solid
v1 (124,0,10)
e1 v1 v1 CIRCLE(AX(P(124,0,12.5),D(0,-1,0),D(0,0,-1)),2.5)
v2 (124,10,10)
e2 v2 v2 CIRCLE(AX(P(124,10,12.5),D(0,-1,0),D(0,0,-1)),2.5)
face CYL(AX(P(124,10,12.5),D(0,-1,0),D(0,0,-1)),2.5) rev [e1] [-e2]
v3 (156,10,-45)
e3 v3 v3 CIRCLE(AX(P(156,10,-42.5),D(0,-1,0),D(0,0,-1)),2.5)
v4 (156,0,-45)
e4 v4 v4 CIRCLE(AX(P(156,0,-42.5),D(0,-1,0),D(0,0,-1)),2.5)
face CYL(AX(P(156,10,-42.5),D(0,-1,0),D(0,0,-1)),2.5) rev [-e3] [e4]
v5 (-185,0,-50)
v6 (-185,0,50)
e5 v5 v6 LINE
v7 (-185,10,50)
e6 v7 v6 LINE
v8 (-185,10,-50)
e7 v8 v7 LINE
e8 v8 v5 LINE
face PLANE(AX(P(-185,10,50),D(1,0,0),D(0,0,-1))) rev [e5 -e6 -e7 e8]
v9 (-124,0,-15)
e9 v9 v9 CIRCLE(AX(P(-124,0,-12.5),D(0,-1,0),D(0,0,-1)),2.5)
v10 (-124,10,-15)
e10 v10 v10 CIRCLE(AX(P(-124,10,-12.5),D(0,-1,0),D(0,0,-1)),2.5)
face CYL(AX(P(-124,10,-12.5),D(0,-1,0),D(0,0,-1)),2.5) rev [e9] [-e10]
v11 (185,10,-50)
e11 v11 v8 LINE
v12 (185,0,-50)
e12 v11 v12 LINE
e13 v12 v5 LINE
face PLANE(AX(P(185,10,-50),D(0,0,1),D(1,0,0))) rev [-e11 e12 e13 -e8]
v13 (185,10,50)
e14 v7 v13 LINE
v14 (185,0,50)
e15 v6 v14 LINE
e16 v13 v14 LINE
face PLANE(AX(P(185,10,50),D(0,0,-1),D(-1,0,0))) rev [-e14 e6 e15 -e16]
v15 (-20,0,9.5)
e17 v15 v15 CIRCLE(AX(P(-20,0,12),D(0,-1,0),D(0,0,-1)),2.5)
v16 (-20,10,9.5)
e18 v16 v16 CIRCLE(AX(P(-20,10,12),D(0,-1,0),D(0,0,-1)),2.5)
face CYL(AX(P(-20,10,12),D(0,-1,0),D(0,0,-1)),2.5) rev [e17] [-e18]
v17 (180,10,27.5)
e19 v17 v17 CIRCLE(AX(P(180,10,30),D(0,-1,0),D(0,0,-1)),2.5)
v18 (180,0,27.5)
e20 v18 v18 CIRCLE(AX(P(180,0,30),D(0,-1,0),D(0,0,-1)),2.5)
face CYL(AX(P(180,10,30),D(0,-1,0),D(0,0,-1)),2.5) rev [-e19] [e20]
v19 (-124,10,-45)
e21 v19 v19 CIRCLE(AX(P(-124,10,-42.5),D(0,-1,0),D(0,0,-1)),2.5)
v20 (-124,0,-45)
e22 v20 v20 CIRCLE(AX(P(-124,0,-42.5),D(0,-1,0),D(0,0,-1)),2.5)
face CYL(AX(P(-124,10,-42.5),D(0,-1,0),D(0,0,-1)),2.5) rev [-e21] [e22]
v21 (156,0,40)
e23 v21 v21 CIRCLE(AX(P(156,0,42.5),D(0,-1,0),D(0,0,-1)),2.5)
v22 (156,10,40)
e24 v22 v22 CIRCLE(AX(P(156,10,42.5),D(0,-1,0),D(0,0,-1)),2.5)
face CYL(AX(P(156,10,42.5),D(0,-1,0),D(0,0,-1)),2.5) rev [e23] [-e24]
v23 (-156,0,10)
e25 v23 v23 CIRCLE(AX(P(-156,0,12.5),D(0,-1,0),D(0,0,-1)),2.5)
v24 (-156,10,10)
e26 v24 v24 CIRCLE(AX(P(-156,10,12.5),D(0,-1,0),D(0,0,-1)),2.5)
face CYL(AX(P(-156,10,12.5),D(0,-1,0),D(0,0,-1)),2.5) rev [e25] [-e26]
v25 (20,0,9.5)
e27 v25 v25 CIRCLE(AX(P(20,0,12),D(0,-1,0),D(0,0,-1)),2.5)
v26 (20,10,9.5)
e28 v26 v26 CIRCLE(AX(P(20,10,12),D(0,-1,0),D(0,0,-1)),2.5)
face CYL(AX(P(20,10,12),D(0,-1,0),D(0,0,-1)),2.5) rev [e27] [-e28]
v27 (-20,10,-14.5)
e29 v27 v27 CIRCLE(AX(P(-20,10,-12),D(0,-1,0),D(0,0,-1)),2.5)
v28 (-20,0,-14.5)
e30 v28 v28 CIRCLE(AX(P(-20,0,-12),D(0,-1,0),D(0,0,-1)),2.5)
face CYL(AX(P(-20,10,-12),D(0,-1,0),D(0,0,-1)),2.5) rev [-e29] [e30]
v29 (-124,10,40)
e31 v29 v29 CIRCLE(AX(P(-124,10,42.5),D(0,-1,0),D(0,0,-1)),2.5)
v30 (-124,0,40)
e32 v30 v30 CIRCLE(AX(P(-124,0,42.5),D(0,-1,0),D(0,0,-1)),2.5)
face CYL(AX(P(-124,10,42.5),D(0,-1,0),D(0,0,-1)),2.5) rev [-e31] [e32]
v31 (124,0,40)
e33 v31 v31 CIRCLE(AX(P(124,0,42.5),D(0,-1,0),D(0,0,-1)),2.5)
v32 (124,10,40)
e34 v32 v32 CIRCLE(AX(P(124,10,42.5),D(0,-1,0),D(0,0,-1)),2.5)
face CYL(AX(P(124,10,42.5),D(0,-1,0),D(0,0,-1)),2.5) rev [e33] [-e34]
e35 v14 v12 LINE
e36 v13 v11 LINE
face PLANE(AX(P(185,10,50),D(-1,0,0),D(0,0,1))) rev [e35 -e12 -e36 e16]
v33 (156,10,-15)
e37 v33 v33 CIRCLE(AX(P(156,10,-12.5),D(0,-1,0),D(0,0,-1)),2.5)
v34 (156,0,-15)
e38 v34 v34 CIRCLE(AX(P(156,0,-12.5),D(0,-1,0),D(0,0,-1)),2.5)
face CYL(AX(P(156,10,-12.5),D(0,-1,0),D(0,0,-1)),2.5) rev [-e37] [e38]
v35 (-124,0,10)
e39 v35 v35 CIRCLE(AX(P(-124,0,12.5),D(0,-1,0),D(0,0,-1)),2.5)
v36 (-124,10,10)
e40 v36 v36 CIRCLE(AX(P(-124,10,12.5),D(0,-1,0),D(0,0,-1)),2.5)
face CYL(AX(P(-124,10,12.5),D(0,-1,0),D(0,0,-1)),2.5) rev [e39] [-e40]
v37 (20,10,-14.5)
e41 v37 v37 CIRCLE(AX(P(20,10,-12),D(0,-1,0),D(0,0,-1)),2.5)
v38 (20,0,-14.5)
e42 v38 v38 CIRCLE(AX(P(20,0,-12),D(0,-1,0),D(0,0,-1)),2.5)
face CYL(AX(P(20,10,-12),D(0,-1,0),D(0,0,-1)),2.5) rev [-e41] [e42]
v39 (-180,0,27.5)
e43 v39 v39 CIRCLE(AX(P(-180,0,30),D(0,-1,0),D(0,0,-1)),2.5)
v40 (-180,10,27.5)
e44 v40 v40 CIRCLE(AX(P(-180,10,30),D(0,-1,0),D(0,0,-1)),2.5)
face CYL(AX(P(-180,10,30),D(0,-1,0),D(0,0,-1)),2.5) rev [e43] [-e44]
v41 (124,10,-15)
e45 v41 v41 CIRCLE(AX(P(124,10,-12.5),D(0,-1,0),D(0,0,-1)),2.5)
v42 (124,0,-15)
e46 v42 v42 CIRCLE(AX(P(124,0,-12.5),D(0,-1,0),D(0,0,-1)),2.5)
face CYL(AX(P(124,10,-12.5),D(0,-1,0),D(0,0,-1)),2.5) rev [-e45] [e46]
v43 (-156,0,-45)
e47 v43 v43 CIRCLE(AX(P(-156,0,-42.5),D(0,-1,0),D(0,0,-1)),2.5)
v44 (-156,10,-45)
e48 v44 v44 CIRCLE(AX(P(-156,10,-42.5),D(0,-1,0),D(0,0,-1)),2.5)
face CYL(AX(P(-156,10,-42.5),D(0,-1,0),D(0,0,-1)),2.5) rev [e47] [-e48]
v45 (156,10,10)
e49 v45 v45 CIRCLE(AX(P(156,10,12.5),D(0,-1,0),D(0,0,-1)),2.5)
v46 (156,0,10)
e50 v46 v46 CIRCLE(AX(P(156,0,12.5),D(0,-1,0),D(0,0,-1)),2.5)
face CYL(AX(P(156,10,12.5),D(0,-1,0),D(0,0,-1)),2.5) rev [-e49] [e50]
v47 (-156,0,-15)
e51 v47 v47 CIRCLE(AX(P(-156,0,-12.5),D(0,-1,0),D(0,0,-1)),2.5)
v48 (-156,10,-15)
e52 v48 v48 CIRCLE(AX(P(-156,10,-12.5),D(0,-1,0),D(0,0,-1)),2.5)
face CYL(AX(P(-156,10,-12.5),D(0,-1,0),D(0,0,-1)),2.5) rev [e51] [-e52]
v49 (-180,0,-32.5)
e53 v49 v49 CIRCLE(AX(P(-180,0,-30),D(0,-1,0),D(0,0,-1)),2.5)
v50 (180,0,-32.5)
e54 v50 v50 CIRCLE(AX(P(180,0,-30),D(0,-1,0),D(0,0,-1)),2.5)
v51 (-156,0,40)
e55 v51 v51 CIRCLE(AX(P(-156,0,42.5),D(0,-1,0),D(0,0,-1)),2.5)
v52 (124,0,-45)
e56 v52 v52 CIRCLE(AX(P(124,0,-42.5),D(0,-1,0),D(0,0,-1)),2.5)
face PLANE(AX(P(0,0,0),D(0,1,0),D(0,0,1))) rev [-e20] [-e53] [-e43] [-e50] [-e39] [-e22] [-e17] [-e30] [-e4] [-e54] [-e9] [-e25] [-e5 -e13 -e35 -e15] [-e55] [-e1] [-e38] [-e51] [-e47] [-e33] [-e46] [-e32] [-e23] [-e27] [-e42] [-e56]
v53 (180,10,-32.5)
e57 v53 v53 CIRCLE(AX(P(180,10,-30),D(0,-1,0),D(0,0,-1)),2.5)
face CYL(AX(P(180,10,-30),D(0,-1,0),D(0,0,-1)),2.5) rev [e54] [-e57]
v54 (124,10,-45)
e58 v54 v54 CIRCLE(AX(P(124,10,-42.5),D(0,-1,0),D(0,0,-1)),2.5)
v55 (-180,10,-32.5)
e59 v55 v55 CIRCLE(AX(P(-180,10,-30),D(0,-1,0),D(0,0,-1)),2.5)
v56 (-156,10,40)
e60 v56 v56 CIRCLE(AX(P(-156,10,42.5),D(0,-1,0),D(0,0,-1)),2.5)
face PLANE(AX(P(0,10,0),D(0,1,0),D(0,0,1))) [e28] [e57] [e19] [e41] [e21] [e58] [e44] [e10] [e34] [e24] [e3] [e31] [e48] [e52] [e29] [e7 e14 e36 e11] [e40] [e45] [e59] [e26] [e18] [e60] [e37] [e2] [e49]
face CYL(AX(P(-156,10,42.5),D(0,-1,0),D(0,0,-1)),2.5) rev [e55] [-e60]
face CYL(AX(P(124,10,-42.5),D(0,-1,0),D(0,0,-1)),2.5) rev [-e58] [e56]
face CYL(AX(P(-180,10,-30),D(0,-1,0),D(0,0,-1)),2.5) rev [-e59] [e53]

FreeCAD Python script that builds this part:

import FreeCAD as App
import Part
import Sketcher
Q = App.Units.Quantity

doc = App.newDocument("Part")
body = doc.addObject("PartDesign::Body", "Body")

# Sketch on XZ plane
sketch1 = body.newObject("Sketcher::SketchObject", "Sketch")
sketch1.AttachmentSupport = (doc.getObject("XZ_Plane"), [""])
sketch1.MapMode = "FlatFace"
sketch1.addGeometry([
    Part.LineSegment(App.Vector(-185, -50, 0), App.Vector(-185, 50, 0)),
    Part.LineSegment(App.Vector(-185, 50, 0), App.Vector(185, 50, 0)),
    Part.LineSegment(App.Vector(185, 50, 0), App.Vector(185, -50, 0)),
    Part.LineSegment(App.Vector(185, -50, 0), App.Vector(-185, -50, 0)),
], False)
sketch1.addConstraint([
    Sketcher.Constraint("Coincident", 0, 2, 1, 1),
    Sketcher.Constraint("Coincident", 1, 2, 2, 1),
    Sketcher.Constraint("Coincident", 2, 2, 3, 1),
    Sketcher.Constraint("Coincident", 3, 2, 0, 1),
    Sketcher.Constraint("Vertical", 0),
    Sketcher.Constraint("Horizontal", 1),
    Sketcher.Constraint("Vertical", 2),
    Sketcher.Constraint("Horizontal", 3),
    Sketcher.Constraint("Symmetric", 0, 2, 2, 2, -1, 1),
    Sketcher.Constraint("DistanceX", 1, 1, 1, 2, Q("370 mm")),
    Sketcher.Constraint("DistanceY", 0, 1, 0, 2, Q("100 mm")),
])
pad1 = body.newObject("PartDesign::Pad", "Pad")
pad1.Profile = sketch1
pad1.Length = 10
pad1.Reversed = True

# Sketch on XZ plane
sketch2 = body.newObject("Sketcher::SketchObject", "Sketch001")
sketch2.AttachmentSupport = (doc.getObject("XZ_Plane"), [""])
sketch2.MapMode = "FlatFace"
sketch2.addGeometry([
    Part.Circle(App.Vector(-156, 42.5, 0), App.Vector(0, 0, 1), 2.5),  # 0
    Part.Circle(App.Vector(-124, 42.5, 0), App.Vector(0, 0, 1), 2.5),  # 1
    Part.Circle(App.Vector(124, 42.5, 0), App.Vector(0, 0, 1), 2.5),  # 2
    Part.Circle(App.Vector(156, 42.5, 0), App.Vector(0, 0, 1), 2.5),  # 3
    Part.Circle(App.Vector(-156, 12.5, 0), App.Vector(0, 0, 1), 2.5),  # 4
    Part.Circle(App.Vector(-124, 12.5, 0), App.Vector(0, 0, 1), 2.5),  # 5
    Part.Circle(App.Vector(124, 12.5, 0), App.Vector(0, 0, 1), 2.5),  # 6
    Part.Circle(App.Vector(156, 12.5, 0), App.Vector(0, 0, 1), 2.5),  # 7
    Part.Circle(App.Vector(-156, -12.5, 0), App.Vector(0, 0, 1), 2.5),  # 8
    Part.Circle(App.Vector(-124, -12.5, 0), App.Vector(0, 0, 1), 2.5),  # 9
    Part.Circle(App.Vector(124, -12.5, 0), App.Vector(0, 0, 1), 2.5),  # 10
    Part.Circle(App.Vector(156, -12.5, 0), App.Vector(0, 0, 1), 2.5),  # 11
    Part.Circle(App.Vector(-156, -42.5, 0), App.Vector(0, 0, 1), 2.5),  # 12
    Part.Circle(App.Vector(-124, -42.5, 0), App.Vector(0, 0, 1), 2.5),  # 13
    Part.Circle(App.Vector(124, -42.5, 0), App.Vector(0, 0, 1), 2.5),  # 14
    Part.Circle(App.Vector(156, -42.5, 0), App.Vector(0, 0, 1), 2.5),  # 15
    Part.Circle(App.Vector(-20, 12, 0), App.Vector(0, 0, 1), 2.5),  # 16
    Part.Circle(App.Vector(20, 12, 0), App.Vector(0, 0, 1), 2.5),  # 17
    Part.Circle(App.Vector(20, -12, 0), App.Vector(0, 0, 1), 2.5),  # 18
    Part.Circle(App.Vector(-20, -12, 0), App.Vector(0, 0, 1), 2.5),  # 19
    Part.Circle(App.Vector(-180, 30, 0), App.Vector(0, 0, 1), 2.5),  # 20
    Part.Circle(App.Vector(-180, -30, 0), App.Vector(0, 0, 1), 2.5),  # 21
    Part.Circle(App.Vector(180, -30, 0), App.Vector(0, 0, 1), 2.5),  # 22
    Part.Circle(App.Vector(180, 30, 0), App.Vector(0, 0, 1), 2.5),  # 23
], False)
sketch2.addConstraint([
    Sketcher.Constraint("Equal", 0, 1),
    Sketcher.Constraint("Equal", 1, 2),
    Sketcher.Constraint("Equal", 2, 3),
    Sketcher.Constraint("Equal", 3, 4),
    Sketcher.Constraint("Equal", 4, 5),
    Sketcher.Constraint("Equal", 5, 6),
    Sketcher.Constraint("Equal", 6, 7),
    Sketcher.Constraint("Equal", 7, 8),
    Sketcher.Constraint("Equal", 8, 9),
    Sketcher.Constraint("Equal", 9, 10),
    Sketcher.Constraint("Equal", 10, 11),
    Sketcher.Constraint("Equal", 11, 12),
    Sketcher.Constraint("Equal", 12, 13),
    Sketcher.Constraint("Equal", 13, 14),
    Sketcher.Constraint("Equal", 14, 15),
    Sketcher.Constraint("Equal", 15, 16),
    Sketcher.Constraint("Equal", 16, 17),
    Sketcher.Constraint("Equal", 17, 18),
    Sketcher.Constraint("Equal", 18, 19),
    Sketcher.Constraint("Equal", 19, 20),
    Sketcher.Constraint("Equal", 20, 21),
    Sketcher.Constraint("Equal", 21, 22),
    Sketcher.Constraint("Equal", 22, 23),
    Sketcher.Constraint("Symmetric", 7, 3, 8, 3, -1, 1),
    Sketcher.Constraint("Symmetric", 6, 3, 9, 3, -1, 1),
    Sketcher.Constraint("Symmetric", 5, 3, 10, 3, -1, 1),
    Sketcher.Constraint("Symmetric", 4, 3, 11, 3, -1, 1),
    Sketcher.Constraint("Symmetric", 3, 3, 12, 3, -1, 1),
    Sketcher.Constraint("Symmetric", 2, 3, 13, 3, -1, 1),
    Sketcher.Constraint("Symmetric", 1, 3, 14, 3, -1, 1),
    Sketcher.Constraint("Symmetric", 0, 3, 15, 3, -1, 1),
    Sketcher.Constraint("Symmetric", 16, 3, 18, 3, -1, 1),
    Sketcher.Constraint("Symmetric", 17, 3, 19, 3, -1, 1),
    Sketcher.Constraint("Symmetric", 20, 3, 22, 3, -1, 1),
    Sketcher.Constraint("Symmetric", 21, 3, 23, 3, -1, 1),
    Sketcher.Constraint("Symmetric", 1, 3, 2, 3, -2),
    Sketcher.Constraint("Symmetric", 0, 3, 3, 3, -2),
    Sketcher.Constraint("Symmetric", 5, 3, 6, 3, -2),
    Sketcher.Constraint("Symmetric", 4, 3, 7, 3, -2),
    Sketcher.Constraint("Symmetric", 16, 3, 17, 3, -2),
    Sketcher.Constraint("Symmetric", 21, 3, 22, 3, -2),
    Sketcher.Constraint("Horizontal", 0, 3, 1, 3),
    Sketcher.Constraint("Horizontal", 4, 3, 5, 3),
    Sketcher.Constraint("Vertical", 0, 3, 4, 3),
    Sketcher.Constraint("Vertical", 1, 3, 5, 3),
    Sketcher.Constraint("Diameter", 0, Q("5 mm")),
    Sketcher.Constraint("DistanceX", 0, 3, -1, 1, Q("156 mm")),
    Sketcher.Constraint("DistanceX", 1, 3, -1, 1, Q("124 mm")),
    Sketcher.Constraint("DistanceX", 16, 3, -1, 1, Q("20 mm")),
    Sketcher.Constraint("DistanceY", -1, 1, 16, 3, Q("12 mm")),
    Sketcher.Constraint("DistanceX", 20, 3, -1, 1, Q("180 mm")),
    Sketcher.Constraint("DistanceY", -1, 1, 20, 3, Q("30 mm")),
    Sketcher.Constraint("DistanceY", 4, 3, 0, 3, Q("30 mm")),
    Sketcher.Constraint("DistanceY", 8, 3, 4, 3, Q("25 mm")),
])
pocket1 = body.newObject("PartDesign::Pocket", "Pocket")
pocket1.Profile = sketch2
pocket1.Type = "ThroughAll"

doc.recompute()
